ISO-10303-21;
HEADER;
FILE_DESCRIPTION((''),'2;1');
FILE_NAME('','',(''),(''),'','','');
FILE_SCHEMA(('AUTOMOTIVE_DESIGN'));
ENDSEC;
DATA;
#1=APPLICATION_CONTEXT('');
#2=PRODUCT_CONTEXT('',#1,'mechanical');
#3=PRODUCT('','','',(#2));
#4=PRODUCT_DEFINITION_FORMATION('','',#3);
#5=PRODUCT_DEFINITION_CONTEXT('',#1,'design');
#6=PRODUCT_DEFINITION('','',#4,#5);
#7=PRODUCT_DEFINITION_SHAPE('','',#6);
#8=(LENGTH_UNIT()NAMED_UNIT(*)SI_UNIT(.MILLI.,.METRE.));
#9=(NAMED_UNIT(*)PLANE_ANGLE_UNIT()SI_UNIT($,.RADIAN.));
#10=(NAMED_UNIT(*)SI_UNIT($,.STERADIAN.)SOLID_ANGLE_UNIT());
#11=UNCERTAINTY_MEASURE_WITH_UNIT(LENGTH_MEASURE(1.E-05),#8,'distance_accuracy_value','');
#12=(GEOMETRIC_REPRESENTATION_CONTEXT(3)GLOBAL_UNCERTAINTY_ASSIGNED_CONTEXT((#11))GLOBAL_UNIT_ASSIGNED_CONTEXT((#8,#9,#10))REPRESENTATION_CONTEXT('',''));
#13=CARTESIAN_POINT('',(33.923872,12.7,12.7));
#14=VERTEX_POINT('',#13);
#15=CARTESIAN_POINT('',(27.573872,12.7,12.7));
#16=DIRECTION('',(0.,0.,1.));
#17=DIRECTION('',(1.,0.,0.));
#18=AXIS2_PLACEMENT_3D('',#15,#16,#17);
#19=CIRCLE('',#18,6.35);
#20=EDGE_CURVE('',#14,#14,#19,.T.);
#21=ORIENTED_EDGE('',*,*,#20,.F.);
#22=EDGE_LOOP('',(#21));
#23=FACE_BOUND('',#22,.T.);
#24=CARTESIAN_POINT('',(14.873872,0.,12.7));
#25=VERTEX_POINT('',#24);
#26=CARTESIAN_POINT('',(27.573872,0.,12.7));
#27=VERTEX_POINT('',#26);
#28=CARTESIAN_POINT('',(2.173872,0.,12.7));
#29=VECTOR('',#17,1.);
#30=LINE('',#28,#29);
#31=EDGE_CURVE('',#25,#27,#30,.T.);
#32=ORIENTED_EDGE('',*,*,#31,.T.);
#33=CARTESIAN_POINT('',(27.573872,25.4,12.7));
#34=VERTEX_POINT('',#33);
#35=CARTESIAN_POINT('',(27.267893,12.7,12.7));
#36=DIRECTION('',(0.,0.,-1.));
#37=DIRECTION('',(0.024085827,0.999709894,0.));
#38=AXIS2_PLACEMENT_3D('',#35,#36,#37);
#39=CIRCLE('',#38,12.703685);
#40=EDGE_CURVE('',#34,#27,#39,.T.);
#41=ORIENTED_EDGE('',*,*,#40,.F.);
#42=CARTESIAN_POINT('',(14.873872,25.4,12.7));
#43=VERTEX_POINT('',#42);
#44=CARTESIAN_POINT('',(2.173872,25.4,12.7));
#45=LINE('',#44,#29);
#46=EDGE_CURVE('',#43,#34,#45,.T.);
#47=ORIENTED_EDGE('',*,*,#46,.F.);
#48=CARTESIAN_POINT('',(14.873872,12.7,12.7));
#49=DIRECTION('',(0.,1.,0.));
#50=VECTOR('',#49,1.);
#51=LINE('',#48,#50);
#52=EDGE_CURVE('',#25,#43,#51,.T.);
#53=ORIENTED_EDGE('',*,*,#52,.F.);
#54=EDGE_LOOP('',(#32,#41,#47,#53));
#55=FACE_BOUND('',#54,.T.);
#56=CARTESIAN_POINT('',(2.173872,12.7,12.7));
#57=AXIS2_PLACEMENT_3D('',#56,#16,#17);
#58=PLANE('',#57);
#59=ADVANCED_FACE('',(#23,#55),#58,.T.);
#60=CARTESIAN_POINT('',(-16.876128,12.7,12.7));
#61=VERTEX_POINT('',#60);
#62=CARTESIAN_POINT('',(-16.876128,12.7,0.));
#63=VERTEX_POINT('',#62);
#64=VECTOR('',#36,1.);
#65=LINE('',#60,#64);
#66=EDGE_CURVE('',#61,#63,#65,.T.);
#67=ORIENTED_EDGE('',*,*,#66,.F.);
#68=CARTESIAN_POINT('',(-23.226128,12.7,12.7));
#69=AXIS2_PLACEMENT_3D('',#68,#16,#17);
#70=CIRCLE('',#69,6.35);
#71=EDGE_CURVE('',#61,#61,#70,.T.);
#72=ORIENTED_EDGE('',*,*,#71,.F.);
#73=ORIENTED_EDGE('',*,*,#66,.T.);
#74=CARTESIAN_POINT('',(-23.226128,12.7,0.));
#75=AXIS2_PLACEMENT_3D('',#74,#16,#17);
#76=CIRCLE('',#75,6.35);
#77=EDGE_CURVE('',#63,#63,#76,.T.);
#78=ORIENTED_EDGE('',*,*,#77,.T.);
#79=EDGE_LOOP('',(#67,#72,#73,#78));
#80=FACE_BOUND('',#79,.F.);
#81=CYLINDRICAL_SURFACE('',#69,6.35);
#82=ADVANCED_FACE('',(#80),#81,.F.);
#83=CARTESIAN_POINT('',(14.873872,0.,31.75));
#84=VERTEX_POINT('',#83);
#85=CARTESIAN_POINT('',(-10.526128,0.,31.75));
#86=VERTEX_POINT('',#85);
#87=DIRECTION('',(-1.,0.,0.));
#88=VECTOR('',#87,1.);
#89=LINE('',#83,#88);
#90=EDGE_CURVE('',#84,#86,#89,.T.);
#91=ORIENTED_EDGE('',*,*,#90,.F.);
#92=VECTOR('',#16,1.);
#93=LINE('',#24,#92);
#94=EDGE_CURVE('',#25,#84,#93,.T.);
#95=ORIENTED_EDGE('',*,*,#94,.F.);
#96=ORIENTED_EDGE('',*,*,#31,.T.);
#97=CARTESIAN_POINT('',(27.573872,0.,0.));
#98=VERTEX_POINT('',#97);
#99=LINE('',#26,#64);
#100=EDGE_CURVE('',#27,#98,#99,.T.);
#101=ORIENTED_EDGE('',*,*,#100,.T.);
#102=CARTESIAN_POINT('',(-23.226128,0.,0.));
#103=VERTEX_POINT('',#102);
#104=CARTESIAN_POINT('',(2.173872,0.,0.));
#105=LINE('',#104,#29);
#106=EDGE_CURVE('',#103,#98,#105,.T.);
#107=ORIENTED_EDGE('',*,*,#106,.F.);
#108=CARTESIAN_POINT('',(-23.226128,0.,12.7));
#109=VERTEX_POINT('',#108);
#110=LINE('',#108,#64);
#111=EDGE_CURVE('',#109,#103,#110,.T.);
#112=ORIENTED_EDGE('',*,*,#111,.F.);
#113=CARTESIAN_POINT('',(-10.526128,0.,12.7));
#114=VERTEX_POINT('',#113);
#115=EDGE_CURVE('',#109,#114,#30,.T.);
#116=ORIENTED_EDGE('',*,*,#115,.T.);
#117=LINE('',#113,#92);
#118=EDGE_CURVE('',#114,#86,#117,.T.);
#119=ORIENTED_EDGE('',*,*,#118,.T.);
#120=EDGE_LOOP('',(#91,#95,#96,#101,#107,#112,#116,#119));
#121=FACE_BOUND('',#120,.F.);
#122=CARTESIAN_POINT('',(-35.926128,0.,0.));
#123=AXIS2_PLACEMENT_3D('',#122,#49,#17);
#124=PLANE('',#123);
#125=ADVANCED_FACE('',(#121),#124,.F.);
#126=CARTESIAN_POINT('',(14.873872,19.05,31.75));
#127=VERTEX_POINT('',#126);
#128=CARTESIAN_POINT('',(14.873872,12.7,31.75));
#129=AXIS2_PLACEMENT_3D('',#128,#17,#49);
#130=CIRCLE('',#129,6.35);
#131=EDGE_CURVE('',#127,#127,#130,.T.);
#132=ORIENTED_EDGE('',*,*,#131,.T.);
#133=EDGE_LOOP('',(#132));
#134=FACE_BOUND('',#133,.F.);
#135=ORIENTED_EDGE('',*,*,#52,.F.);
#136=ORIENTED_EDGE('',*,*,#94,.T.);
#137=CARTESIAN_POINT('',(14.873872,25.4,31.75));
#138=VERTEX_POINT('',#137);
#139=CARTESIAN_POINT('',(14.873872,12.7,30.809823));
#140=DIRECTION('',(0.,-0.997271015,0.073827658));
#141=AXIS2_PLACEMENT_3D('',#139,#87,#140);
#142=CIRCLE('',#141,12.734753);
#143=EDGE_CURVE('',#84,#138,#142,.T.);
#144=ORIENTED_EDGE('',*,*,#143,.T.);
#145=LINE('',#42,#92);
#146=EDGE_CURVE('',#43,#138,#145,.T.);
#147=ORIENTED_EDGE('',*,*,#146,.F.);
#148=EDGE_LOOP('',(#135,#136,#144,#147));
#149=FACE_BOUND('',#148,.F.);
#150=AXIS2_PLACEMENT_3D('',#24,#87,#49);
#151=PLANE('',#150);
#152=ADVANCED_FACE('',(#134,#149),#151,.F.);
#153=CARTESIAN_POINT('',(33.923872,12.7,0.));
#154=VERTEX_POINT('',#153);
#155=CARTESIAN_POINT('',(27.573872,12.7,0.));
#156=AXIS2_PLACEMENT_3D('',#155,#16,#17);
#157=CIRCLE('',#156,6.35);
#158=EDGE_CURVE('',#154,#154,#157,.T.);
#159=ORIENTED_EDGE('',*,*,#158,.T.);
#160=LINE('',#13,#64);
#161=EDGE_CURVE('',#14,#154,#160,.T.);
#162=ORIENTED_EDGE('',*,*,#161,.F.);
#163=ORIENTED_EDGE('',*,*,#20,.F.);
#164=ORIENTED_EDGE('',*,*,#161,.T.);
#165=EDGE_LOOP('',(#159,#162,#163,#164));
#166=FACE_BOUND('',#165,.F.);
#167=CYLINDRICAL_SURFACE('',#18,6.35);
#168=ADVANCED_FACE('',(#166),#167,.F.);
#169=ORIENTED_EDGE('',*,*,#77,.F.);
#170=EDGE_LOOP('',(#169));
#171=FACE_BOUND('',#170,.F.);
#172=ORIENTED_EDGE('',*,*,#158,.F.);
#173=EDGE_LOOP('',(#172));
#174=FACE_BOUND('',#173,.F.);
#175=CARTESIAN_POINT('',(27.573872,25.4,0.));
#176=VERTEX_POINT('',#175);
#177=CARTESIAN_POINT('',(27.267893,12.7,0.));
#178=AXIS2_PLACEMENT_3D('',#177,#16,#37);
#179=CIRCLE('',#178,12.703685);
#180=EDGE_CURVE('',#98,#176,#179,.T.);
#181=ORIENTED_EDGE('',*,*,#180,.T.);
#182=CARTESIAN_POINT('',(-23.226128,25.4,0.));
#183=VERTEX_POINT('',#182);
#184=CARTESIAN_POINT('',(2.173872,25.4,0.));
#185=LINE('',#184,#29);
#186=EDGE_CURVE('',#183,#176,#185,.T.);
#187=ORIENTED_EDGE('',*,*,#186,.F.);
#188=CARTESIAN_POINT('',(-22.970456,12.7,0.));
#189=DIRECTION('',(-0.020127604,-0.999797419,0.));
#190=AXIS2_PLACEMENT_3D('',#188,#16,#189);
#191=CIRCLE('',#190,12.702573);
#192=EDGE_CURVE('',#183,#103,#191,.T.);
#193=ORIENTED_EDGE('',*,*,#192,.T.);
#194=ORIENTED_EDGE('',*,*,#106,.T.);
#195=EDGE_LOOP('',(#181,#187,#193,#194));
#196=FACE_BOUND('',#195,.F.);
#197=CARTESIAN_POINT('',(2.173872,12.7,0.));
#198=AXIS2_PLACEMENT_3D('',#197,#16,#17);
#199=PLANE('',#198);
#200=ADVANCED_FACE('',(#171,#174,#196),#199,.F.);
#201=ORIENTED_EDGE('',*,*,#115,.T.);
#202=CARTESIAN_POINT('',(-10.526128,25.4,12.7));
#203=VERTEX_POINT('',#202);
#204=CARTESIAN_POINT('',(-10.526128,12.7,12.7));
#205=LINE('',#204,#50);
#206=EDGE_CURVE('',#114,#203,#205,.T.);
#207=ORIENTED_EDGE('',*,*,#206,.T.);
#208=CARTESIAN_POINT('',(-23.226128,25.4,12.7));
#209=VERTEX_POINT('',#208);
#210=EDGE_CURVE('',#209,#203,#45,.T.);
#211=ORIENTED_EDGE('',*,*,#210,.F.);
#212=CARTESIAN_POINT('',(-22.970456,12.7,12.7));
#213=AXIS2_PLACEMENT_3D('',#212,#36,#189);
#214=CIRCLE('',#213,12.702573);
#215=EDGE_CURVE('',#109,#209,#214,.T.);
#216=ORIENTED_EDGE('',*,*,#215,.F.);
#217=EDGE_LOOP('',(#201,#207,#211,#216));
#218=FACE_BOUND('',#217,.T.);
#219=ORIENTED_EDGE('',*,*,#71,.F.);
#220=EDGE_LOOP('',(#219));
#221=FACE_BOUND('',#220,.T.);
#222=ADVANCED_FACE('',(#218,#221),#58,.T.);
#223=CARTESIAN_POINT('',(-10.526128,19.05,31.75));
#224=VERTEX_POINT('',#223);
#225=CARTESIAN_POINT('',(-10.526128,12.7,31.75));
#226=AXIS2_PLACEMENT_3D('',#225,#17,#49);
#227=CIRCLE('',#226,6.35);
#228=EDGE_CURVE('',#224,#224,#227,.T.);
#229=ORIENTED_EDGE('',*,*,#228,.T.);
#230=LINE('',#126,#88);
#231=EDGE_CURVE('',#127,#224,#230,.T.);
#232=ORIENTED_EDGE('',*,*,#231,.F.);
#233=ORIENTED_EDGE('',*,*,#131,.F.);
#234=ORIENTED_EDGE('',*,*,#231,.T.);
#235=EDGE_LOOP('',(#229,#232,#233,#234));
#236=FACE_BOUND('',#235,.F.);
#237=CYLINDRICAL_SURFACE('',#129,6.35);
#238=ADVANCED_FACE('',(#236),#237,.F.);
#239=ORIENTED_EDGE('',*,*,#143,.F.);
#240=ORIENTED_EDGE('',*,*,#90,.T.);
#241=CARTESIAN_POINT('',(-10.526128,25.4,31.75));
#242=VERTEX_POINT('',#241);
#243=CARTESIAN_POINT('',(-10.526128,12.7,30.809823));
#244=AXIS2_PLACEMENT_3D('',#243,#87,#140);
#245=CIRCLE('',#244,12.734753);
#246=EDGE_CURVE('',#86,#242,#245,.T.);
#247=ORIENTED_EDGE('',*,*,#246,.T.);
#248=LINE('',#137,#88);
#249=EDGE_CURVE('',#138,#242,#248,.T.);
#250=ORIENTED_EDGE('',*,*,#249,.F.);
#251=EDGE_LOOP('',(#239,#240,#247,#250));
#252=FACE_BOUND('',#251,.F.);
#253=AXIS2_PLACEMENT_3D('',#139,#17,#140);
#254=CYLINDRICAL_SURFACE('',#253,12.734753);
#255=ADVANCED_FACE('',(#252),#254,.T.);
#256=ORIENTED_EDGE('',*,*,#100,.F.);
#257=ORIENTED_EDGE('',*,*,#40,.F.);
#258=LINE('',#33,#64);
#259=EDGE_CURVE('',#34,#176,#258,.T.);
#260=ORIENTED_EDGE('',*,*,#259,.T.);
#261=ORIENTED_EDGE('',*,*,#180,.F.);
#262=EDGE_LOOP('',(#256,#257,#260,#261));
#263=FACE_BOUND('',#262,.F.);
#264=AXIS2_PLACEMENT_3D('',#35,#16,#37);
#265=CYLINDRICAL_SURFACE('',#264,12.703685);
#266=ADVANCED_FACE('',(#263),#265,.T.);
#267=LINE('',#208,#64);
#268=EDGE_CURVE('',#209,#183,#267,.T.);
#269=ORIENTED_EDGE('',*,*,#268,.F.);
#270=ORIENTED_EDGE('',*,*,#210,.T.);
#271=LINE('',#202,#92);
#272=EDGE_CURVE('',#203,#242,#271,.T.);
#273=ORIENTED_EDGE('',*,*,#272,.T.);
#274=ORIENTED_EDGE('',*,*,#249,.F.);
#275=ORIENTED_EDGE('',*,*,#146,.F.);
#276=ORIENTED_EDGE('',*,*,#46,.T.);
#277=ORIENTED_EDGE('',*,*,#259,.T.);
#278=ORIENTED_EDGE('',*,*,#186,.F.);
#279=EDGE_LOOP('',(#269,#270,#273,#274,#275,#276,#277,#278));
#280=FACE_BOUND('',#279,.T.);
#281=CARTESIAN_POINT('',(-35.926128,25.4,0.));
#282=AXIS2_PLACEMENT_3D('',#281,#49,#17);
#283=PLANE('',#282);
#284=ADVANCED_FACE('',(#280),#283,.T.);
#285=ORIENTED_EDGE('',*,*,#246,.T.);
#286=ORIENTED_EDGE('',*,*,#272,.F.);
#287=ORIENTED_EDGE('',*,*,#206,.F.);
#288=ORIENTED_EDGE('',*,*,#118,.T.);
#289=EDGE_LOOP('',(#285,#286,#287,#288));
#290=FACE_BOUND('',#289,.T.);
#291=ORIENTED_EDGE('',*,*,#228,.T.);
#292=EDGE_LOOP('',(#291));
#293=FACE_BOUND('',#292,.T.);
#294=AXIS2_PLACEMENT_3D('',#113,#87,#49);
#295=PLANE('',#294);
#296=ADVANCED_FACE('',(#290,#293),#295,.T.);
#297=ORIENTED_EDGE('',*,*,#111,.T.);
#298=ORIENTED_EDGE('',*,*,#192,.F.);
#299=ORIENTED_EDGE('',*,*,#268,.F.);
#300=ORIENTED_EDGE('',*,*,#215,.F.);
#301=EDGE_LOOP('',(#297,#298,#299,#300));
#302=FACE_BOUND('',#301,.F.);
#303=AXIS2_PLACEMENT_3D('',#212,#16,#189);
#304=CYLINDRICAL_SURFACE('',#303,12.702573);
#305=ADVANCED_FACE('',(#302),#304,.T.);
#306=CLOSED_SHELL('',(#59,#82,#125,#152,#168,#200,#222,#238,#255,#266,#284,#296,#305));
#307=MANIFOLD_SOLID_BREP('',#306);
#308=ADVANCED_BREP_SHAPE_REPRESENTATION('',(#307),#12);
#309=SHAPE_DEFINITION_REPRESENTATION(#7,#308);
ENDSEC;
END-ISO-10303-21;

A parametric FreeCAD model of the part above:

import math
import FreeCAD as App
import Part
import Sketcher
Q = App.Units.Quantity

doc = App.newDocument("Part")
body = doc.addObject("PartDesign::Body", "Body")

sketch1 = body.newObject("Sketcher::SketchObject", "Sketch")
sketch1.AttachmentSupport = (doc.getObject("XY_Plane"), [""])
sketch1.MapMode = "FlatFace"
sketch1.addGeometry([
    Part.LineSegment(App.Vector(-36, 25, 0), App.Vector(-36, 0, 0)),
    Part.LineSegment(App.Vector(-36, 0, 0), App.Vector(40, 0, 0)),
    Part.LineSegment(App.Vector(40, 0, 0), App.Vector(40, 25, 0)),
    Part.LineSegment(App.Vector(40, 25, 0), App.Vector(-36, 25, 0)),
], False)
sketch1.addConstraint([
    Sketcher.Constraint("Coincident", 0, 2, 1, 1),
    Sketcher.Constraint("Coincident", 1, 2, 2, 1),
    Sketcher.Constraint("Coincident", 2, 2, 3, 1),
    Sketcher.Constraint("Coincident", 3, 2, 0, 1),
    Sketcher.Constraint("Vertical", 0),
    Sketcher.Constraint("Horizontal", 1),
    Sketcher.Constraint("Vertical", 2),
    Sketcher.Constraint("Horizontal", 3),
    Sketcher.Constraint("PointOnObject", 0, 2, -1),
    Sketcher.Constraint("DistanceX", 1, 1, 1, 2, Q("3 in")),
    Sketcher.Constraint("DistanceY", 0, 2, 0, 1, Q("1 in")),
    Sketcher.Constraint("DistanceX", 0, 2, -1, 1, Q("35.926128 mm")),
])
pad1 = body.newObject("PartDesign::Pad", "Pad")
pad1.Profile = sketch1
pad1.Length = Q("0.5 in")

sketch2 = body.newObject("Sketcher::SketchObject", "Sketch001")
sketch2.AttachmentSupport = (doc.getObject("XY_Plane"), [""])
sketch2.MapMode = "FlatFace"
sketch2.AttachmentOffset = App.Placement(App.Vector(0, 0, 0.5 * 25.4), App.Rotation())
sketch2.addGeometry([
    Part.Circle(App.Vector(-23, 13, 0), App.Vector(0, 0, 1), 6),
    Part.Circle(App.Vector(28, 13, 0), App.Vector(0, 0, 1), 6),
], False)
sketch2.addConstraint([
    Sketcher.Constraint("Equal", 0, 1),
    Sketcher.Constraint("Horizontal", 0, 3, 1, 3),
    Sketcher.Constraint("Diameter", 0, Q("0.5 in")),
    Sketcher.Constraint("DistanceX", 0, 3, 1, 3, Q("2 in")),
    Sketcher.Constraint("DistanceY", -1, 1, 0, 3, Q("0.5 in")),
    Sketcher.Constraint("DistanceX", 0, 3, -1, 1, Q("23.226128 mm")),
])
pocket1 = body.newObject("PartDesign::Pocket", "Pocket")
pocket1.Profile = sketch2
pocket1.Length = Q("1 in")

sketch3 = body.newObject("Sketcher::SketchObject", "Sketch002")
sketch3.AttachmentSupport = (doc.getObject("XY_Plane"), [""])
sketch3.MapMode = "FlatFace"
sketch3.AttachmentOffset = App.Placement(App.Vector(0, 0, 0.5 * 25.4), App.Rotation())
sketch3.addGeometry([
    Part.LineSegment(App.Vector(-11, 25, 0), App.Vector(-11, 0, 0)),
    Part.LineSegment(App.Vector(-11, 0, 0), App.Vector(15, 0, 0)),
    Part.LineSegment(App.Vector(15, 0, 0), App.Vector(15, 25, 0)),
    Part.LineSegment(App.Vector(15, 25, 0), App.Vector(-11, 25, 0)),
], False)
sketch3.addConstraint([
    Sketcher.Constraint("Coincident", 0, 2, 1, 1),
    Sketcher.Constraint("Coincident", 1, 2, 2, 1),
    Sketcher.Constraint("Coincident", 2, 2, 3, 1),
    Sketcher.Constraint("Coincident", 3, 2, 0, 1),
    Sketcher.Constraint("Vertical", 0),
    Sketcher.Constraint("Horizontal", 1),
    Sketcher.Constraint("Vertical", 2),
    Sketcher.Constraint("Horizontal", 3),
    Sketcher.Constraint("PointOnObject", 0, 2, -1),
    Sketcher.Constraint("Equal", 3, 0),
    Sketcher.Constraint("DistanceX", 1, 1, 1, 2, Q("1 in")),
    Sketcher.Constraint("DistanceX", 0, 2, -1, 1, Q("10.526128 mm")),
])
pad2 = body.newObject("PartDesign::Pad", "Pad001")
pad2.Profile = sketch3
pad2.Length = Q("1.25 in")

sketch4 = body.newObject("Sketcher::SketchObject", "Sketch003")
sketch4.AttachmentSupport = (doc.getObject("XY_Plane"), [""])
sketch4.MapMode = "FlatFace"
sketch4.AttachmentOffset = App.Placement(App.Vector(0, 0, 0.5 * 25.4), App.Rotation())
sketch4.addGeometry([
    Part.ArcOfCircle(Part.Circle(App.Vector(27, 13, 0), App.Vector(0, 0, 1), 13), math.radians(-89), math.radians(89)),
    Part.LineSegment(App.Vector(28, 0, 0), App.Vector(40, 0, 0)),
    Part.LineSegment(App.Vector(40, 0, 0), App.Vector(40, 25, 0)),
    Part.LineSegment(App.Vector(40, 25, 0), App.Vector(28, 25, 0)),
], False)
sketch4.addConstraint([
    Sketcher.Constraint("Coincident", 0, 1, 1, 1),
    Sketcher.Constraint("Coincident", 1, 2, 2, 1),
    Sketcher.Constraint("Coincident", 2, 2, 3, 1),
    Sketcher.Constraint("Coincident", 3, 2, 0, 2),
    Sketcher.Constraint("Horizontal", 1),
    Sketcher.Constraint("Vertical", 2),
    Sketcher.Constraint("Horizontal", 3),
    Sketcher.Constraint("PointOnObject", 0, 1, -1),
    Sketcher.Constraint("Vertical", 0, 1, 3, 2),
    Sketcher.Constraint("DistanceY", 2, 1, 2, 2, Q("1 in")),
    Sketcher.Constraint("DistanceX", 1, 1, 1, 2, Q("0.5 in")),
    Sketcher.Constraint("Radius", 0, Q("12.703685 mm")),
    Sketcher.Constraint("DistanceX", -1, 1, 0, 1, Q("27.573872 mm")),
])
pocket2 = body.newObject("PartDesign::Pocket", "Pocket001")
pocket2.Profile = sketch4
pocket2.Length = Q("1 in")

sketch5 = body.newObject("Sketcher::SketchObject", "Sketch004")
sketch5.AttachmentSupport = (doc.getObject("XY_Plane"), [""])
sketch5.MapMode = "FlatFace"
sketch5.AttachmentOffset = App.Placement(App.Vector(0, 0, 0.5 * 25.4), App.Rotation())
sketch5.addGeometry([
    Part.ArcOfCircle(Part.Circle(App.Vector(-23, 13, 0), App.Vector(0, 0, 1), 13), math.radians(91), math.radians(269)),
    Part.LineSegment(App.Vector(-23, 25, 0), App.Vector(-36, 25, 0)),
    Part.LineSegment(App.Vector(-36, 25, 0), App.Vector(-36, 0, 0)),
    Part.LineSegment(App.Vector(-36, 0, 0), App.Vector(-23, 0, 0)),
], False)
sketch5.addConstraint([
    Sketcher.Constraint("Coincident", 0, 1, 1, 1),
    Sketcher.Constraint("Coincident", 1, 2, 2, 1),
    Sketcher.Constraint("Coincident", 2, 2, 3, 1),
    Sketcher.Constraint("Coincident", 3, 2, 0, 2),
    Sketcher.Constraint("Horizontal", 1),
    Sketcher.Constraint("Vertical", 2),
    Sketcher.Constraint("Horizontal", 3),
    Sketcher.Constraint("PointOnObject", 2, 2, -1),
    Sketcher.Constraint("Vertical", 0, 1, 3, 2),
    Sketcher.Constraint("DistanceY", 2, 2, 2, 1, Q("1 in")),
    Sketcher.Constraint("DistanceX", 1, 2, 1, 1, Q("0.5 in")),
    Sketcher.Constraint("Radius", 0, Q("12.702573 mm")),
    Sketcher.Constraint("DistanceX", 0, 1, -1, 1, Q("23.226128 mm")),
])
pocket3 = body.newObject("PartDesign::Pocket", "Pocket002")
pocket3.Profile = sketch5
pocket3.Length = Q("1 in")

sketch6 = body.newObject("Sketcher::SketchObject", "Sketch005")
sketch6.AttachmentSupport = (doc.getObject("YZ_Plane"), [""])
sketch6.MapMode = "FlatFace"
sketch6.AttachmentOffset = App.Placement(App.Vector(0, 0, 14.873872), App.Rotation())
sketch6.addGeometry(Part.Circle(App.Vector(13, 32, 0), App.Vector(0, 0, 1), 6), False)
sketch6.addConstraint([
    Sketcher.Constraint("Diameter", 0, Q("0.5 in")),
    Sketcher.Constraint("DistanceX", -1, 1, 0, 3, Q("0.5 in")),
    Sketcher.Constraint("DistanceY", -1, 1, 0, 3, Q("1.25 in")),
])
pocket4 = body.newObject("PartDesign::Pocket", "Pocket003")
pocket4.Profile = sketch6
pocket4.Length = Q("1 in")

sketch7 = body.newObject("Sketcher::SketchObject", "Sketch006")
sketch7.AttachmentSupport = (doc.getObject("YZ_Plane"), [""])
sketch7.MapMode = "FlatFace"
sketch7.AttachmentOffset = App.Placement(App.Vector(0, 0, 14.873872), App.Rotation())
sketch7.addGeometry([
    Part.ArcOfCircle(Part.Circle(App.Vector(13, 31, 0), App.Vector(0, 0, 1), 13), math.radians(4), math.radians(176)),
    Part.LineSegment(App.Vector(25, 32, 0), App.Vector(25, 44, 0)),
    Part.LineSegment(App.Vector(25, 44, 0), App.Vector(0, 44, 0)),
    Part.LineSegment(App.Vector(0, 44, 0), App.Vector(0, 32, 0)),
], False)
sketch7.addConstraint([
    Sketcher.Constraint("Coincident", 0, 1, 1, 1),
    Sketcher.Constraint("Coincident", 1, 2, 2, 1),
    Sketcher.Constraint("Coincident", 2, 2, 3, 1),
    Sketcher.Constraint("Coincident", 3, 2, 0, 2),
    Sketcher.Constraint("Vertical", 1),
    Sketcher.Constraint("Horizontal", 2),
    Sketcher.Constraint("Vertical", 3),
    Sketcher.Constraint("PointOnObject", 2, 2, -2),
    Sketcher.Constraint("Horizontal", 0, 1, 3, 2),
    Sketcher.Constraint("DistanceX", 2, 2, 2, 1, Q("1 in")),
    Sketcher.Constraint("DistanceY", 1, 1, 1, 2, Q("0.5 in")),
    Sketcher.Constraint("DistanceY", -1, 1, 0, 1, Q("1.25 in")),
    Sketcher.Constraint("Radius", 0, Q("12.734753 mm")),
])
pocket5 = body.newObject("PartDesign::Pocket", "Pocket004")
pocket5.Profile = sketch7
pocket5.Length = Q("1 in")

doc.recompute()
